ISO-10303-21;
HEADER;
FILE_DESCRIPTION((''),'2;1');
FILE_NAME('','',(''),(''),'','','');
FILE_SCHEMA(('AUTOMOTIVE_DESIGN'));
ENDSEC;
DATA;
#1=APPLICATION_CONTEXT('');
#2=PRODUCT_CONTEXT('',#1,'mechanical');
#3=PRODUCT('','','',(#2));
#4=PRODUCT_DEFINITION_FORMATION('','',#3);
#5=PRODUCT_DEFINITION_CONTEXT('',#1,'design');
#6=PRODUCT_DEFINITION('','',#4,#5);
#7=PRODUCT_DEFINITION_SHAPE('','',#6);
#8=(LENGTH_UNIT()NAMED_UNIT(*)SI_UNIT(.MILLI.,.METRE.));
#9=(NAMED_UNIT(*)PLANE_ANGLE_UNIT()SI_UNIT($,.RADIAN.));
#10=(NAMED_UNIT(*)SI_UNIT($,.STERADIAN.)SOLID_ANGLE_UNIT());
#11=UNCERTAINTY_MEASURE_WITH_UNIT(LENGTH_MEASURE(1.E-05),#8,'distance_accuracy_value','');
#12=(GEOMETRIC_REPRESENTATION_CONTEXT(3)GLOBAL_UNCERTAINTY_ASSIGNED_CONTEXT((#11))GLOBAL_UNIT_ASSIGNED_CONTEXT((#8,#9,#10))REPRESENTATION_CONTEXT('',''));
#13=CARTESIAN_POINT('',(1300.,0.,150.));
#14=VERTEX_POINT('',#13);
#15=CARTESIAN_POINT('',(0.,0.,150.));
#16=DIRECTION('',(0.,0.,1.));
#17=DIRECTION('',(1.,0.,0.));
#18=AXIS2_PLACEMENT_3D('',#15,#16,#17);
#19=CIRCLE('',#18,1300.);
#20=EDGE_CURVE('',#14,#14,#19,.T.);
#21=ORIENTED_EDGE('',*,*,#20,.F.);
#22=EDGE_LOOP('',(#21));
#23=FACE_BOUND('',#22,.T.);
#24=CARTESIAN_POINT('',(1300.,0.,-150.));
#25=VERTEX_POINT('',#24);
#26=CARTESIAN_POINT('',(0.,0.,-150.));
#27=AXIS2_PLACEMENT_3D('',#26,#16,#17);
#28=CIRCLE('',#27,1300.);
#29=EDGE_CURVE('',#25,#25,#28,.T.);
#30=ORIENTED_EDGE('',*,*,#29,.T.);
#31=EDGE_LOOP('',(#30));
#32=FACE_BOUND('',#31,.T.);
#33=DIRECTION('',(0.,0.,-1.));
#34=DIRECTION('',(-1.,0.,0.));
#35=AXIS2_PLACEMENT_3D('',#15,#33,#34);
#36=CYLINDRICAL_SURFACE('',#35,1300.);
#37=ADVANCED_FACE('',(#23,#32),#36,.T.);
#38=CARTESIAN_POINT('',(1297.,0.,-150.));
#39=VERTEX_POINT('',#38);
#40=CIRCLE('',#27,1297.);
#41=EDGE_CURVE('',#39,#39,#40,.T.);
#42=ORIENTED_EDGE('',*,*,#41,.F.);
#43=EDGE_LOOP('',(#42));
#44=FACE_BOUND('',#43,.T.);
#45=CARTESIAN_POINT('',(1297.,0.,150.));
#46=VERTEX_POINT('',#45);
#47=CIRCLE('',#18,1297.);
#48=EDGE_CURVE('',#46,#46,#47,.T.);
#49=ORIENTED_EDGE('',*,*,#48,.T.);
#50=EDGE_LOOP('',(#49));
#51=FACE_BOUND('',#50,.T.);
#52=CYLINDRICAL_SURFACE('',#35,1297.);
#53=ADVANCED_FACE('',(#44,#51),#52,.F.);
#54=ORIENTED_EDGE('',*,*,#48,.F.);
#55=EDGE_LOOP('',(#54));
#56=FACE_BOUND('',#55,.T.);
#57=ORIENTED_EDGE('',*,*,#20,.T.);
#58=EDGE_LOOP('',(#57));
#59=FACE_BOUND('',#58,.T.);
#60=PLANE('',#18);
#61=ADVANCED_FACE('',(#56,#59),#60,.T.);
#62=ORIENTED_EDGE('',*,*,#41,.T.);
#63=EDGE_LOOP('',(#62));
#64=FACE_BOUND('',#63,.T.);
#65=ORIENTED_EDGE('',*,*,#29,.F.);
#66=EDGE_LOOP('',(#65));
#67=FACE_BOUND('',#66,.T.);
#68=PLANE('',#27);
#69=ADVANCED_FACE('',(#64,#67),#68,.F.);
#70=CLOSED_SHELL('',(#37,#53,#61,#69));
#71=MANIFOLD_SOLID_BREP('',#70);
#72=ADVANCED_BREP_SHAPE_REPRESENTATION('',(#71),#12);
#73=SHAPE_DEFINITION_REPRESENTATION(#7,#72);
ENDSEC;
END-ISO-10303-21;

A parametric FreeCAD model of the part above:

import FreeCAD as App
import Part
import Sketcher

doc = App.newDocument("Part")
body = doc.addObject("PartDesign::Body", "Body")

# Sketch on XY plane
sketch1 = body.newObject("Sketcher::SketchObject", "Sketch")
sketch1.AttachmentSupport = (doc.getObject("XY_Plane"), [""])
sketch1.MapMode = "FlatFace"
sketch1.addGeometry(Part.Circle(App.Vector(0, 0, 0), App.Vector(0, 0, 1), 1300), False)
sketch1.addGeometry(Part.Circle(App.Vector(0, 0, 0), App.Vector(0, 0, 1), 1297), False)
sketch1.addConstraint(Sketcher.Constraint("Coincident", 0, 3, -1, 1))
sketch1.addConstraint(Sketcher.Constraint("Coincident", 1, 3, -1, 1))
sketch1.addConstraint(Sketcher.Constraint("Diameter", 0, 2600.0))
sketch1.addConstraint(Sketcher.Constraint("Diameter", 1, 2594.0))
pad1 = body.newObject("PartDesign::Pad", "Pad")
pad1.Profile = sketch1
pad1.Length = 300
pad1.Midplane = True

doc.recompute()
